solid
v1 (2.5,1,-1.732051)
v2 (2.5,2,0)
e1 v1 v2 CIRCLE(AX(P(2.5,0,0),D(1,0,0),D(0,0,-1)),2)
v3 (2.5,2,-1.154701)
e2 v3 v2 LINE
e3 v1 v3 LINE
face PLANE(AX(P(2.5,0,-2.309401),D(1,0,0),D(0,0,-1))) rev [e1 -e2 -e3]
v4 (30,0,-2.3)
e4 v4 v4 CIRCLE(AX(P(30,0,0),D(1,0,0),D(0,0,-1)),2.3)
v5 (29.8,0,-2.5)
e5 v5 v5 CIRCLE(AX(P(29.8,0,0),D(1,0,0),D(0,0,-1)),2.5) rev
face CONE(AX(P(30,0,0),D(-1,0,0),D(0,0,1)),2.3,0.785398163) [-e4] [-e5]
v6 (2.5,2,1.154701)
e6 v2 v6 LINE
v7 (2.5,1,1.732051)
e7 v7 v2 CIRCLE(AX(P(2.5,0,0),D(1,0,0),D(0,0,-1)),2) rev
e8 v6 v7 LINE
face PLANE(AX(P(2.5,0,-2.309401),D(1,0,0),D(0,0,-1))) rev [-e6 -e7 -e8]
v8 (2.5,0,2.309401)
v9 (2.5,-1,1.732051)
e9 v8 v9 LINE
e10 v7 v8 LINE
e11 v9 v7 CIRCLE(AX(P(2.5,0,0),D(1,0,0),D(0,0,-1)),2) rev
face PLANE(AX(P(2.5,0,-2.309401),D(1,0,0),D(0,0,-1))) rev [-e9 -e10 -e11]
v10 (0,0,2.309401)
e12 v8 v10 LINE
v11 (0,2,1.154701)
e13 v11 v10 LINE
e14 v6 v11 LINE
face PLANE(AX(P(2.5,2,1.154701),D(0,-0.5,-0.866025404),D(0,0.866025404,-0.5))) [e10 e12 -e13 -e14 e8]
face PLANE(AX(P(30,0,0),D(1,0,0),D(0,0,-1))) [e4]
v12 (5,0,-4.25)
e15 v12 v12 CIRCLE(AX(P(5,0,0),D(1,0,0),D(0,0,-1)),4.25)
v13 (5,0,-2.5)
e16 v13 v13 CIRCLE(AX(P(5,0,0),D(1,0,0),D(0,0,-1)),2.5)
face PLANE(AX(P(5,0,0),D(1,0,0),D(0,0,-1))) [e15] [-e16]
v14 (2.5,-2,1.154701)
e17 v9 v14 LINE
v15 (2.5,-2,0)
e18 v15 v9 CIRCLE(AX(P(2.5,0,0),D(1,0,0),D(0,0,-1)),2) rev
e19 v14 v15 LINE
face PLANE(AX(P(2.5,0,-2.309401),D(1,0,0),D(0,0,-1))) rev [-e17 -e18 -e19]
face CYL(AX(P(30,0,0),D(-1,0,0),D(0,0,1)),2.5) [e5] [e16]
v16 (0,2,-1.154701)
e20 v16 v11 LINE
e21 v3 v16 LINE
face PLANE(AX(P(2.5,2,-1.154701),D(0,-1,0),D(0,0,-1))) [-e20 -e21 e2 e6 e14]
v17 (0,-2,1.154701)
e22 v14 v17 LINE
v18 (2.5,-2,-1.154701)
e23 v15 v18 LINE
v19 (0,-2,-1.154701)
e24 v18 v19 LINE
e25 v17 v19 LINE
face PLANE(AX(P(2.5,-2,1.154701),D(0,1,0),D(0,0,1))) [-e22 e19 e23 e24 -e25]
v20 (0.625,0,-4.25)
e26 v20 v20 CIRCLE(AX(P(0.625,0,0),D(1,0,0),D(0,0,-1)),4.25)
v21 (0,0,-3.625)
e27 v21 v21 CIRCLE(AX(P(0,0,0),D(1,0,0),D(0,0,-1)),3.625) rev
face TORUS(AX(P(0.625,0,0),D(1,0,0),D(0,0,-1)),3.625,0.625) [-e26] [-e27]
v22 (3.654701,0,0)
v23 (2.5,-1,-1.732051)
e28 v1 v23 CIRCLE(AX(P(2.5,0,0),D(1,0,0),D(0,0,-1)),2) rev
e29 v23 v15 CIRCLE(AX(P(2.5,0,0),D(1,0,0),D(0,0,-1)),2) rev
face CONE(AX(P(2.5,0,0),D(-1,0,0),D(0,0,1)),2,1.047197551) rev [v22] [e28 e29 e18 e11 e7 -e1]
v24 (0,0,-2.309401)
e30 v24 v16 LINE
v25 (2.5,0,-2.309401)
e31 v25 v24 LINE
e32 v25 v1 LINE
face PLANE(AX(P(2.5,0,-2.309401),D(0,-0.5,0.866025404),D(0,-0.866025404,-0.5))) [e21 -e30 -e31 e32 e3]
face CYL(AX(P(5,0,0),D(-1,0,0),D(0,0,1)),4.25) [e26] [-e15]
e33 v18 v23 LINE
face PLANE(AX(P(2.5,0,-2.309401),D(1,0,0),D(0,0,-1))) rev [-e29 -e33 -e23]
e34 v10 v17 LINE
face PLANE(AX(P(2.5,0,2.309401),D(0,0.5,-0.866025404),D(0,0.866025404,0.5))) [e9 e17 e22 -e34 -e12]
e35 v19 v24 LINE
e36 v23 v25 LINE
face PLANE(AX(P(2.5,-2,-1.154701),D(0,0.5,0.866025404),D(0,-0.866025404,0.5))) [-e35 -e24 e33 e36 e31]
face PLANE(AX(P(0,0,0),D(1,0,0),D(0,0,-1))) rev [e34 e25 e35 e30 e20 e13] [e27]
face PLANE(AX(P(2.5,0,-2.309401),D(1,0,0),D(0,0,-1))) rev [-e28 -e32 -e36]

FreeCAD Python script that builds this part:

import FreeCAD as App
import Part
import Sketcher

V = App.Vector
Q = App.Units.Quantity


def edges_at(feature, points):
    """Names of the edges that pass closest to the given points."""
    edges = feature.Shape.Edges
    near = lambda p: min(range(len(edges)), key=lambda i: edges[i].distToShape(Part.Vertex(*p))[0])
    return sorted({f"Edge{near(p) + 1}" for p in points})

doc = App.newDocument("Part")
body = doc.addObject("PartDesign::Body", "Body")

# Sketch on YZ plane
sketch1 = body.newObject("Sketcher::SketchObject", "Sketch")
sketch1.AttachmentSupport = (doc.getObject("YZ_Plane"), [""])
sketch1.MapMode = "FlatFace"
sketch1.addGeometry(Part.Circle(V(0, 0, 0), V(0, 0, 1), 4.25), False)
sketch1.addConstraint([
    Sketcher.Constraint("Coincident", 0, 3, -1, 1),
    Sketcher.Constraint("Diameter", 0, 8.5),
])
pad1 = body.newObject("PartDesign::Pad", "Pad")
pad1.Profile = sketch1
pad1.Length = 5

# Sketch on YZ plane
sketch2 = body.newObject("Sketcher::SketchObject", "Sketch001")
sketch2.AttachmentSupport = (doc.getObject("YZ_Plane"), [""])
sketch2.MapMode = "FlatFace"
sketch2.AttachmentOffset = App.Placement(V(0, 0, 5), App.Rotation())
sketch2.addGeometry(Part.Circle(V(0, 0, 0), V(0, 0, 1), 2.5), False)
sketch2.addConstraint([
    Sketcher.Constraint("Coincident", 0, 3, -1, 1),
    Sketcher.Constraint("Diameter", 0, 5.0),
])
pad2 = body.newObject("PartDesign::Pad", "Pad001")
pad2.Profile = sketch2
pad2.Length = 25

# Sketch on YZ plane
sketch3 = body.newObject("Sketcher::SketchObject", "Sketch002")
sketch3.AttachmentSupport = (doc.getObject("YZ_Plane"), [""])
sketch3.MapMode = "FlatFace"
sketch3.addGeometry([
    Part.LineSegment(V(0, -2.309401, 0), V(2, -1.154701, 0)),  # 0
    Part.LineSegment(V(2, -1.154701, 0), V(2, 1.154701, 0)),  # 1
    Part.LineSegment(V(2, 1.154701, 0), V(0, 2.309401, 0)),  # 2
    Part.LineSegment(V(0, 2.309401, 0), V(-2, 1.154701, 0)),  # 3
    Part.LineSegment(V(-2, 1.154701, 0), V(-2, -1.154701, 0)),  # 4
    Part.LineSegment(V(-2, -1.154701, 0), V(0, -2.309401, 0)),  # 5
], False)
sketch3.addConstraint([
    Sketcher.Constraint("Coincident", 0, 2, 1, 1),
    Sketcher.Constraint("Coincident", 1, 2, 2, 1),
    Sketcher.Constraint("Coincident", 2, 2, 3, 1),
    Sketcher.Constraint("Coincident", 3, 2, 4, 1),
    Sketcher.Constraint("Coincident", 4, 2, 5, 1),
    Sketcher.Constraint("Coincident", 5, 2, 0, 1),
    Sketcher.Constraint("Vertical", 1),
    Sketcher.Constraint("Vertical", 4),
    Sketcher.Constraint("Symmetric", 0, 2, 3, 2, -1, 1),
    Sketcher.Constraint("Symmetric", 2, 2, 5, 2, -1, 1),
    Sketcher.Constraint("PointOnObject", 2, 2, -2),
    Sketcher.Constraint("Parallel", 2, 5),
    Sketcher.Constraint("Horizontal", 1, 2, 3, 2),
    Sketcher.Constraint("Angle", 0, Q("30 deg")),
    Sketcher.Constraint("DistanceX", -1, 1, 0, 2, 2.0),
    Sketcher.Constraint("DistanceY", 1, 1, 1, 2, 2.309401),
])
pocket1 = body.newObject("PartDesign::Pocket", "Pocket")
pocket1.Profile = sketch3
pocket1.Length = 2.5
pocket1.Reversed = True

# Sketch on XY plane
sketch4 = body.newObject("Sketcher::SketchObject", "Sketch003")
sketch4.AttachmentSupport = (doc.getObject("XY_Plane"), [""])
sketch4.MapMode = "FlatFace"
sketch4.addGeometry([
    Part.LineSegment(V(2.5, -2, 0), V(3.654701, 0, 0)),
    Part.LineSegment(V(3.654701, 0, 0), V(2.5, 0, 0)),
    Part.LineSegment(V(2.5, 0, 0), V(2.5, -2, 0)),
], False)
sketch4.addConstraint([
    Sketcher.Constraint("Coincident", 0, 2, 1, 1),
    Sketcher.Constraint("Coincident", 1, 2, 2, 1),
    Sketcher.Constraint("Coincident", 2, 2, 0, 1),
    Sketcher.Constraint("Horizontal", 1),
    Sketcher.Constraint("Vertical", 2),
    Sketcher.Constraint("PointOnObject", 0, 2, -1),
    Sketcher.Constraint("DistanceY", 2, 2, 2, 1, 2.0),
    Sketcher.Constraint("Angle", 0, Q("60 deg")),
    Sketcher.Constraint("DistanceX", -1, 1, 1, 2, 2.5),
])
groove = body.newObject("PartDesign::Groove", "Groove")
groove.Profile = sketch4
groove.ReferenceAxis = (sketch4, ["H_Axis"])
groove.Angle = 360
doc.recompute()

fillet = body.newObject("PartDesign::Fillet", "Fillet")
fillet.Base = (groove, edges_at(groove, [(0, 0, 4.25)]))
fillet.Radius = 0.625
doc.recompute()

chamfer = body.newObject("PartDesign::Chamfer", "Chamfer")
chamfer.Base = (fillet, edges_at(fillet, [(30, 0, 2.5)]))
chamfer.Size = 0.2

doc.recompute()
